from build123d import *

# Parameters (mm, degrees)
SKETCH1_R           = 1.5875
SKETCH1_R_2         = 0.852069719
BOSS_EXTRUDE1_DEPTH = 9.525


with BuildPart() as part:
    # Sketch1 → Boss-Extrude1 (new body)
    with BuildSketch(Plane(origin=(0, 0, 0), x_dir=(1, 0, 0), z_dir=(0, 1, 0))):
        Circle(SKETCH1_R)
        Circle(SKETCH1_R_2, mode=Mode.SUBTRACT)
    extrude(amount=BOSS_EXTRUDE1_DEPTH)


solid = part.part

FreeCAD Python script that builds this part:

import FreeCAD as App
import Part
import Sketcher
Q = App.Units.Quantity

doc = App.newDocument("Part")
params = doc.addObject("Spreadsheet::Sheet", "Params")
for row, (alias, value) in enumerate([
    ("sketch1_diameter", "0.125 in"),
    ("pad1_length", "0.375 in"),
], start=1):
    params.set(f"A{row}", alias)
    params.set(f"B{row}", "=" + value)
    params.setAlias(f"B{row}", alias)

body = doc.addObject("PartDesign::Body", "Body")

# Sketch on XZ plane
sketch1 = body.newObject("Sketcher::SketchObject", "Sketch")
sketch1.AttachmentSupport = (doc.getObject("XZ_Plane"), [""])
sketch1.MapMode = "FlatFace"
sketch1.addGeometry(Part.Circle(App.Vector(0, 0, 0), App.Vector(0, 0, 1), 1.5875), False)
sketch1.addGeometry(Part.Circle(App.Vector(0, 0, 0), App.Vector(0, 0, 1), 0.85207), False)
sketch1.addConstraint(Sketcher.Constraint("Coincident", 0, 3, -1, 1))
sketch1.addConstraint(Sketcher.Constraint("Coincident", 1, 3, -1, 1))
sketch1.addConstraint(Sketcher.Constraint("Diameter", 0, Q("0.125 in")))
sketch1.addConstraint(Sketcher.Constraint("Diameter", 1, 1.704139))
sketch1.setExpression("Constraints[2]", "Params.sketch1_diameter")
pad1 = body.newObject("PartDesign::Pad", "Pad")
pad1.Profile = sketch1
pad1.setExpression("Length", "Params.pad1_length")
pad1.Reversed = True

doc.recompute()
